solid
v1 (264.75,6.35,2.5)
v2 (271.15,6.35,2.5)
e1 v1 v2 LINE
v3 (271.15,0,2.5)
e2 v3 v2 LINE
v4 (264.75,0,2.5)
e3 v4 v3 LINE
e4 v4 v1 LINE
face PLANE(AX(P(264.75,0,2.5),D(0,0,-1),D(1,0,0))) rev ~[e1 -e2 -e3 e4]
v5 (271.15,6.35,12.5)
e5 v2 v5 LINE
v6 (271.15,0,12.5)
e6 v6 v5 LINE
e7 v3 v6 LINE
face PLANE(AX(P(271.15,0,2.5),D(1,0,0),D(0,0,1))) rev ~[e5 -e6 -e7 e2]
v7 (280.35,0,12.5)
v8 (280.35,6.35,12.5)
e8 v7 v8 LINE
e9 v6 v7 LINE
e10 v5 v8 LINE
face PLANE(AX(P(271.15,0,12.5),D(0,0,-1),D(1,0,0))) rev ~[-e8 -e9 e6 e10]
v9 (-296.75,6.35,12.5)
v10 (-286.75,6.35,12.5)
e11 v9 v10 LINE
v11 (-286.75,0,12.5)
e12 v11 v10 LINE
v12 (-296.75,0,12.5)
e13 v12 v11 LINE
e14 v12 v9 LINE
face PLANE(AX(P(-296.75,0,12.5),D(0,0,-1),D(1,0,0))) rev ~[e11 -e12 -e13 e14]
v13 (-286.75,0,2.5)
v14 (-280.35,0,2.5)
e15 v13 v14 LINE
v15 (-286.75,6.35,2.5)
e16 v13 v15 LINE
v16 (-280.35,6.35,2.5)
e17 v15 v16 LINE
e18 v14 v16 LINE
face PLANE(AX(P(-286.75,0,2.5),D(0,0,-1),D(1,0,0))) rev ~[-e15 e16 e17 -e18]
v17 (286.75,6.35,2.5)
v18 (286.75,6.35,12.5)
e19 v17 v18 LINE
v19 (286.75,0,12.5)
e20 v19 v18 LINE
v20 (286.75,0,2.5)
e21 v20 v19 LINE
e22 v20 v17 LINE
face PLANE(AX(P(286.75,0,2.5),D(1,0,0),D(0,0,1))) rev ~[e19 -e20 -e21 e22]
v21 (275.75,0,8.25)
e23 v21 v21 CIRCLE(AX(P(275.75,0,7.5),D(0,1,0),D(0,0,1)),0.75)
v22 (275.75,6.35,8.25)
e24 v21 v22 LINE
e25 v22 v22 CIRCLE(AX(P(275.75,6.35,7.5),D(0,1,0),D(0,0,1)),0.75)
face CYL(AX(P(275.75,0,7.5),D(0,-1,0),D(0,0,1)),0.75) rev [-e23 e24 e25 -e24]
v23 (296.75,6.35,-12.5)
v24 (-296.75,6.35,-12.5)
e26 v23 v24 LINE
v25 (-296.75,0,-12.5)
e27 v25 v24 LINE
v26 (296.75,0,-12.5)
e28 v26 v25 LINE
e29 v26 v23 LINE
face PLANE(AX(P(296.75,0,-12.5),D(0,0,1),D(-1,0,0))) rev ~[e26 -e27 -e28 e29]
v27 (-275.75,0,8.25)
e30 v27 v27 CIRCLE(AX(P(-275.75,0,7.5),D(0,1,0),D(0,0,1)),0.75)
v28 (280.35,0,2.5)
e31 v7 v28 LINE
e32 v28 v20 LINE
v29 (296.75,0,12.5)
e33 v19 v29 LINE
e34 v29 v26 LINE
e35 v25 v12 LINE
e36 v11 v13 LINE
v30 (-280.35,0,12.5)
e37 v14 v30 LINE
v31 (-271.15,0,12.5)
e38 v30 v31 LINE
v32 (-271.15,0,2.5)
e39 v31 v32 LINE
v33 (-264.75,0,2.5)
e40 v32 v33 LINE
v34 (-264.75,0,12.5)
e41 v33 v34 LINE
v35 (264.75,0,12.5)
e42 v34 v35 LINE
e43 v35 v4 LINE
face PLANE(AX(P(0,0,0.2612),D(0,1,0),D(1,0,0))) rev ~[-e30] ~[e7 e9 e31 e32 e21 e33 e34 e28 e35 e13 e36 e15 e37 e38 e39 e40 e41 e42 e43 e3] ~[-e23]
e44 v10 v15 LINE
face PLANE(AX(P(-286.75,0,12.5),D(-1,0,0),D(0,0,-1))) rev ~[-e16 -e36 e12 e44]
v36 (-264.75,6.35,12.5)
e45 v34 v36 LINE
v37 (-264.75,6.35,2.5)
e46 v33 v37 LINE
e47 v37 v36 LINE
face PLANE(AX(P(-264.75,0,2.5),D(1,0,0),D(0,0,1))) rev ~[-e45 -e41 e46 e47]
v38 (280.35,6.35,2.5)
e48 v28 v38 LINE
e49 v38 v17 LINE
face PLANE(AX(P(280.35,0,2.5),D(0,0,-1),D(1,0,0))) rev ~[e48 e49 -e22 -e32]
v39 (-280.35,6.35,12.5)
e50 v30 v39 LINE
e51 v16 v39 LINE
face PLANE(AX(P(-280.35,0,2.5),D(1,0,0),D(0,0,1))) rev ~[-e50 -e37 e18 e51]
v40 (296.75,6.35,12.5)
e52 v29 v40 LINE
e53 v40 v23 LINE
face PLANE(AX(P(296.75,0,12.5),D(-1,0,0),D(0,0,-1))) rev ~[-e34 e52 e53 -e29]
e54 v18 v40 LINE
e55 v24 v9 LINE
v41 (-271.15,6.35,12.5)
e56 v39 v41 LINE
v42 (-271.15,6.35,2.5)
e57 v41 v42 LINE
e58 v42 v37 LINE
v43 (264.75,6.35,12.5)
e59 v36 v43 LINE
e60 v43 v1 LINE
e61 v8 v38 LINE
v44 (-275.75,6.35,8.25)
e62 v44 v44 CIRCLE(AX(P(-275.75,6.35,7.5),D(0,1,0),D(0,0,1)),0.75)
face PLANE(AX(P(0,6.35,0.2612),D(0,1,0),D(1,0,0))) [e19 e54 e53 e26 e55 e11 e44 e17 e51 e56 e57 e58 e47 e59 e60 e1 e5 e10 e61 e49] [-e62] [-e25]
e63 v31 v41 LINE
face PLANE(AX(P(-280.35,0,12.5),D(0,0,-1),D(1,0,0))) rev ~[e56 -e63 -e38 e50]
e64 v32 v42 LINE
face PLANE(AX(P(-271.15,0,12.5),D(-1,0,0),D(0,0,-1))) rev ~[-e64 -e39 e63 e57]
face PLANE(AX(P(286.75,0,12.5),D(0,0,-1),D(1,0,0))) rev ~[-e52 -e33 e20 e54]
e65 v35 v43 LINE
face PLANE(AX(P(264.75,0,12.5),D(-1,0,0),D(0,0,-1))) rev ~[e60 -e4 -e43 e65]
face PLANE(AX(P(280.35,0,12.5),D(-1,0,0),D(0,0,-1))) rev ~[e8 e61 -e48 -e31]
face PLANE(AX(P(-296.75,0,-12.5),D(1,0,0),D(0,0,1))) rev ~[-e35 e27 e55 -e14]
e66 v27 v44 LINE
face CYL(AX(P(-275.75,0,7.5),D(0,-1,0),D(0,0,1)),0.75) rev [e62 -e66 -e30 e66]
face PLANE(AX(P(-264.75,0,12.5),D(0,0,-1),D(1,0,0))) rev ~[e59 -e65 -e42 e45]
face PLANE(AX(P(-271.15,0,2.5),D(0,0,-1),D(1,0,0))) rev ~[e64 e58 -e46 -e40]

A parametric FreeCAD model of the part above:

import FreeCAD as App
import Part
import Sketcher
from FreeCAD import Vector

doc = App.newDocument("Part")
params = doc.addObject("Spreadsheet::Sheet", "Params")
for row, (alias, value) in enumerate([
    ("sketch1_diameter", "1.5 mm"),
    ("sketch1_width", "10 mm"),
    ("sketch1_height", "25 mm"),
    ("sketch1_width2", "593.5 mm"),
    ("sketch1_width3", "6.4 mm"),
    ("pad1_length", "6.35 mm"),
], start=1):
    params.set(f"A{row}", alias)
    params.set(f"B{row}", "=" + value)
    params.setAlias(f"B{row}", alias)

body = doc.addObject("PartDesign::Body", "Body")

# Sketch on XZ plane
sketch1 = body.newObject("Sketcher::SketchObject", "Sketch")
sketch1.AttachmentSupport = (doc.getObject("XZ_Plane"), [""])
sketch1.MapMode = "FlatFace"
sketch1.addGeometry(Part.LineSegment(Vector(296.75, -12.5, 0), Vector(-296.75, -12.5, 0)), False)
sketch1.addGeometry(Part.LineSegment(Vector(-296.75, -12.5, 0), Vector(-296.75, 12.5, 0)), False)
sketch1.addGeometry(Part.LineSegment(Vector(-296.75, 12.5, 0), Vector(-286.75, 12.5, 0)), False)
sketch1.addGeometry(Part.LineSegment(Vector(-286.75, 12.5, 0), Vector(-286.75, 2.5, 0)), False)
sketch1.addGeometry(Part.LineSegment(Vector(-286.75, 2.5, 0), Vector(-280.35, 2.5, 0)), False)
sketch1.addGeometry(Part.LineSegment(Vector(-280.35, 2.5, 0), Vector(-280.35, 12.5, 0)), False)
sketch1.addGeometry(Part.LineSegment(Vector(-280.35, 12.5, 0), Vector(-271.15, 12.5, 0)), False)
sketch1.addGeometry(Part.LineSegment(Vector(-271.15, 12.5, 0), Vector(-271.15, 2.5, 0)), False)
sketch1.addGeometry(Part.LineSegment(Vector(-271.15, 2.5, 0), Vector(-264.75, 2.5, 0)), False)
sketch1.addGeometry(Part.LineSegment(Vector(-264.75, 2.5, 0), Vector(-264.75, 12.5, 0)), False)
sketch1.addGeometry(Part.LineSegment(Vector(-264.75, 12.5, 0), Vector(264.75, 12.5, 0)), False)
sketch1.addGeometry(Part.LineSegment(Vector(264.75, 12.5, 0), Vector(264.75, 2.5, 0)), False)
sketch1.addGeometry(Part.LineSegment(Vector(264.75, 2.5, 0), Vector(271.15, 2.5, 0)), False)
sketch1.addGeometry(Part.LineSegment(Vector(271.15, 2.5, 0), Vector(271.15, 12.5, 0)), False)
sketch1.addGeometry(Part.LineSegment(Vector(271.15, 12.5, 0), Vector(280.35, 12.5, 0)), False)
sketch1.addGeometry(Part.LineSegment(Vector(280.35, 12.5, 0), Vector(280.35, 2.5, 0)), False)
sketch1.addGeometry(Part.LineSegment(Vector(280.35, 2.5, 0), Vector(286.75, 2.5, 0)), False)
sketch1.addGeometry(Part.LineSegment(Vector(286.75, 2.5, 0), Vector(286.75, 12.5, 0)), False)
sketch1.addGeometry(Part.LineSegment(Vector(286.75, 12.5, 0), Vector(296.75, 12.5, 0)), False)
sketch1.addGeometry(Part.LineSegment(Vector(296.75, 12.5, 0), Vector(296.75, -12.5, 0)), False)
sketch1.addGeometry(Part.Circle(Vector(-275.75, 7.5, 0), Vector(0, 0, 1), 0.75), False)
sketch1.addGeometry(Part.Circle(Vector(275.75, 7.5, 0), Vector(0, 0, 1), 0.75), False)
sketch1.addConstraint(Sketcher.Constraint("Coincident", 0, 2, 1, 1))
sketch1.addConstraint(Sketcher.Constraint("Coincident", 1, 2, 2, 1))
sketch1.addConstraint(Sketcher.Constraint("Coincident", 2, 2, 3, 1))
sketch1.addConstraint(Sketcher.Constraint("Coincident", 3, 2, 4, 1))
sketch1.addConstraint(Sketcher.Constraint("Coincident", 4, 2, 5, 1))
sketch1.addConstraint(Sketcher.Constraint("Coincident", 5, 2, 6, 1))
sketch1.addConstraint(Sketcher.Constraint("Coincident", 6, 2, 7, 1))
sketch1.addConstraint(Sketcher.Constraint("Coincident", 7, 2, 8, 1))
sketch1.addConstraint(Sketcher.Constraint("Coincident", 8, 2, 9, 1))
sketch1.addConstraint(Sketcher.Constraint("Coincident", 9, 2, 10, 1))
sketch1.addConstraint(Sketcher.Constraint("Coincident", 10, 2, 11, 1))
sketch1.addConstraint(Sketcher.Constraint("Coincident", 11, 2, 12, 1))
sketch1.addConstraint(Sketcher.Constraint("Coincident", 12, 2, 13, 1))
sketch1.addConstraint(Sketcher.Constraint("Coincident", 13, 2, 14, 1))
sketch1.addConstraint(Sketcher.Constraint("Coincident", 14, 2, 15, 1))
sketch1.addConstraint(Sketcher.Constraint("Coincident", 15, 2, 16, 1))
sketch1.addConstraint(Sketcher.Constraint("Coincident", 16, 2, 17, 1))
sketch1.addConstraint(Sketcher.Constraint("Coincident", 17, 2, 18, 1))
sketch1.addConstraint(Sketcher.Constraint("Coincident", 18, 2, 19, 1))
sketch1.addConstraint(Sketcher.Constraint("Coincident", 19, 2, 0, 1))
sketch1.addConstraint(Sketcher.Constraint("Horizontal", 0))
sketch1.addConstraint(Sketcher.Constraint("Vertical", 1))
sketch1.addConstraint(Sketcher.Constraint("Horizontal", 2))
sketch1.addConstraint(Sketcher.Constraint("Vertical", 3))
sketch1.addConstraint(Sketcher.Constraint("Horizontal", 4))
sketch1.addConstraint(Sketcher.Constraint("Vertical", 5))
sketch1.addConstraint(Sketcher.Constraint("Horizontal", 6))
sketch1.addConstraint(Sketcher.Constraint("Vertical", 7))
sketch1.addConstraint(Sketcher.Constraint("Horizontal", 8))
sketch1.addConstraint(Sketcher.Constraint("Vertical", 9))
sketch1.addConstraint(Sketcher.Constraint("Horizontal", 10))
sketch1.addConstraint(Sketcher.Constraint("Vertical", 11))
sketch1.addConstraint(Sketcher.Constraint("Horizontal", 12))
sketch1.addConstraint(Sketcher.Constraint("Vertical", 13))
sketch1.addConstraint(Sketcher.Constraint("Horizontal", 14))
sketch1.addConstraint(Sketcher.Constraint("Vertical", 15))
sketch1.addConstraint(Sketcher.Constraint("Horizontal", 16))
sketch1.addConstraint(Sketcher.Constraint("Vertical", 17))
sketch1.addConstraint(Sketcher.Constraint("Horizontal", 18))
sketch1.addConstraint(Sketcher.Constraint("Vertical", 19))
sketch1.addConstraint(Sketcher.Constraint("Equal", 20, 21))
sketch1.addConstraint(Sketcher.Constraint("Symmetric", 0, 2, 18, 2, -1, 1))
sketch1.addConstraint(Sketcher.Constraint("Symmetric", 20, 3, 21, 3, -2))
sketch1.addConstraint(Sketcher.Constraint("Symmetric", 8, 2, 11, 2, -2))
sketch1.addConstraint(Sketcher.Constraint("Symmetric", 6, 2, 13, 2, -2))
sketch1.addConstraint(Sketcher.Constraint("Symmetric", 4, 2, 15, 2, -2))
sketch1.addConstraint(Sketcher.Constraint("Symmetric", 2, 2, 17, 2, -2))
sketch1.addConstraint(Sketcher.Constraint("Horizontal", 2, 2, 5, 2))
sketch1.addConstraint(Sketcher.Constraint("Horizontal", 4, 2, 7, 2))
sketch1.addConstraint(Sketcher.Constraint("Horizontal", 6, 2, 9, 2))
sketch1.addConstraint(Sketcher.Constraint("Equal", 4, 8))
sketch1.addConstraint(Sketcher.Constraint("Equal", 18, 3))
sketch1.addConstraint(Sketcher.Constraint("Diameter", 20, 1.5))
sketch1.addConstraint(Sketcher.Constraint("DistanceX", 2, 1, 2, 2, 10.0))
sketch1.addConstraint(Sketcher.Constraint("DistanceY", 1, 1, 1, 2, 25.0))
sketch1.addConstraint(Sketcher.Constraint("DistanceX", 0, 2, 0, 1, 593.5))
sketch1.addConstraint(Sketcher.Constraint("DistanceX", 4, 1, 4, 2, 6.4))
sketch1.addConstraint(Sketcher.Constraint("DistanceX", 6, 1, 6, 2, 9.2))
sketch1.addConstraint(Sketcher.Constraint("DistanceX", 0, 2, 20, 3, 21.0))
sketch1.addConstraint(Sketcher.Constraint("DistanceY", 0, 2, 20, 3, 20.0))
sketch1.setExpression("Constraints[52]", "Params.sketch1_diameter")
sketch1.setExpression("Constraints[53]", "Params.sketch1_width")
sketch1.setExpression("Constraints[54]", "Params.sketch1_height")
sketch1.setExpression("Constraints[55]", "Params.sketch1_width2")
sketch1.setExpression("Constraints[56]", "Params.sketch1_width3")
pad1 = body.newObject("PartDesign::Pad", "Pad")
pad1.Profile = sketch1
pad1.setExpression("Length", "Params.pad1_length")
pad1.Reversed = True

doc.recompute()
